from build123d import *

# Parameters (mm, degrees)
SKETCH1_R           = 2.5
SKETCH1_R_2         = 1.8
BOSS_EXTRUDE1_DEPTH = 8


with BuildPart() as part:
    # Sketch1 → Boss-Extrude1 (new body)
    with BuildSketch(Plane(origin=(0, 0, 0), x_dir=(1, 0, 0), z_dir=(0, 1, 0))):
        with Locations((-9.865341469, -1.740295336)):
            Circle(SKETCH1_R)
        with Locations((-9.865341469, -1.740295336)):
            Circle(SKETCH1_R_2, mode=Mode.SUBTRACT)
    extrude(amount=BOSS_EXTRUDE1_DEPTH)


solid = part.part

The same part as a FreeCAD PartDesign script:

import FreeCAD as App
import Part
import Sketcher

doc = App.newDocument("Part")
body = doc.addObject("PartDesign::Body", "Body")

sketch1 = body.newObject("Sketcher::SketchObject", "Sketch")
sketch1.AttachmentSupport = (doc.getObject("XZ_Plane"), [""])
sketch1.MapMode = "FlatFace"
sketch1.addGeometry(Part.Circle(App.Vector(-9.865341, 1.740295, 0), App.Vector(0, 0, 1), 2.5), False)
sketch1.addGeometry(Part.Circle(App.Vector(-9.865341, 1.740295, 0), App.Vector(0, 0, 1), 1.8), False)
sketch1.addConstraint(Sketcher.Constraint("Coincident", 1, 3, 0, 3))
sketch1.addConstraint(Sketcher.Constraint("Diameter", 0, 5.0))
sketch1.addConstraint(Sketcher.Constraint("Diameter", 1, 3.6))
sketch1.addConstraint(Sketcher.Constraint("DistanceX", 0, 3, -1, 1, 9.865341))
sketch1.addConstraint(Sketcher.Constraint("DistanceY", -1, 1, 0, 3, 1.740295))
pad1 = body.newObject("PartDesign::Pad", "Pad")
pad1.Profile = sketch1
pad1.Length = 8
pad1.Reversed = True

doc.recompute()
